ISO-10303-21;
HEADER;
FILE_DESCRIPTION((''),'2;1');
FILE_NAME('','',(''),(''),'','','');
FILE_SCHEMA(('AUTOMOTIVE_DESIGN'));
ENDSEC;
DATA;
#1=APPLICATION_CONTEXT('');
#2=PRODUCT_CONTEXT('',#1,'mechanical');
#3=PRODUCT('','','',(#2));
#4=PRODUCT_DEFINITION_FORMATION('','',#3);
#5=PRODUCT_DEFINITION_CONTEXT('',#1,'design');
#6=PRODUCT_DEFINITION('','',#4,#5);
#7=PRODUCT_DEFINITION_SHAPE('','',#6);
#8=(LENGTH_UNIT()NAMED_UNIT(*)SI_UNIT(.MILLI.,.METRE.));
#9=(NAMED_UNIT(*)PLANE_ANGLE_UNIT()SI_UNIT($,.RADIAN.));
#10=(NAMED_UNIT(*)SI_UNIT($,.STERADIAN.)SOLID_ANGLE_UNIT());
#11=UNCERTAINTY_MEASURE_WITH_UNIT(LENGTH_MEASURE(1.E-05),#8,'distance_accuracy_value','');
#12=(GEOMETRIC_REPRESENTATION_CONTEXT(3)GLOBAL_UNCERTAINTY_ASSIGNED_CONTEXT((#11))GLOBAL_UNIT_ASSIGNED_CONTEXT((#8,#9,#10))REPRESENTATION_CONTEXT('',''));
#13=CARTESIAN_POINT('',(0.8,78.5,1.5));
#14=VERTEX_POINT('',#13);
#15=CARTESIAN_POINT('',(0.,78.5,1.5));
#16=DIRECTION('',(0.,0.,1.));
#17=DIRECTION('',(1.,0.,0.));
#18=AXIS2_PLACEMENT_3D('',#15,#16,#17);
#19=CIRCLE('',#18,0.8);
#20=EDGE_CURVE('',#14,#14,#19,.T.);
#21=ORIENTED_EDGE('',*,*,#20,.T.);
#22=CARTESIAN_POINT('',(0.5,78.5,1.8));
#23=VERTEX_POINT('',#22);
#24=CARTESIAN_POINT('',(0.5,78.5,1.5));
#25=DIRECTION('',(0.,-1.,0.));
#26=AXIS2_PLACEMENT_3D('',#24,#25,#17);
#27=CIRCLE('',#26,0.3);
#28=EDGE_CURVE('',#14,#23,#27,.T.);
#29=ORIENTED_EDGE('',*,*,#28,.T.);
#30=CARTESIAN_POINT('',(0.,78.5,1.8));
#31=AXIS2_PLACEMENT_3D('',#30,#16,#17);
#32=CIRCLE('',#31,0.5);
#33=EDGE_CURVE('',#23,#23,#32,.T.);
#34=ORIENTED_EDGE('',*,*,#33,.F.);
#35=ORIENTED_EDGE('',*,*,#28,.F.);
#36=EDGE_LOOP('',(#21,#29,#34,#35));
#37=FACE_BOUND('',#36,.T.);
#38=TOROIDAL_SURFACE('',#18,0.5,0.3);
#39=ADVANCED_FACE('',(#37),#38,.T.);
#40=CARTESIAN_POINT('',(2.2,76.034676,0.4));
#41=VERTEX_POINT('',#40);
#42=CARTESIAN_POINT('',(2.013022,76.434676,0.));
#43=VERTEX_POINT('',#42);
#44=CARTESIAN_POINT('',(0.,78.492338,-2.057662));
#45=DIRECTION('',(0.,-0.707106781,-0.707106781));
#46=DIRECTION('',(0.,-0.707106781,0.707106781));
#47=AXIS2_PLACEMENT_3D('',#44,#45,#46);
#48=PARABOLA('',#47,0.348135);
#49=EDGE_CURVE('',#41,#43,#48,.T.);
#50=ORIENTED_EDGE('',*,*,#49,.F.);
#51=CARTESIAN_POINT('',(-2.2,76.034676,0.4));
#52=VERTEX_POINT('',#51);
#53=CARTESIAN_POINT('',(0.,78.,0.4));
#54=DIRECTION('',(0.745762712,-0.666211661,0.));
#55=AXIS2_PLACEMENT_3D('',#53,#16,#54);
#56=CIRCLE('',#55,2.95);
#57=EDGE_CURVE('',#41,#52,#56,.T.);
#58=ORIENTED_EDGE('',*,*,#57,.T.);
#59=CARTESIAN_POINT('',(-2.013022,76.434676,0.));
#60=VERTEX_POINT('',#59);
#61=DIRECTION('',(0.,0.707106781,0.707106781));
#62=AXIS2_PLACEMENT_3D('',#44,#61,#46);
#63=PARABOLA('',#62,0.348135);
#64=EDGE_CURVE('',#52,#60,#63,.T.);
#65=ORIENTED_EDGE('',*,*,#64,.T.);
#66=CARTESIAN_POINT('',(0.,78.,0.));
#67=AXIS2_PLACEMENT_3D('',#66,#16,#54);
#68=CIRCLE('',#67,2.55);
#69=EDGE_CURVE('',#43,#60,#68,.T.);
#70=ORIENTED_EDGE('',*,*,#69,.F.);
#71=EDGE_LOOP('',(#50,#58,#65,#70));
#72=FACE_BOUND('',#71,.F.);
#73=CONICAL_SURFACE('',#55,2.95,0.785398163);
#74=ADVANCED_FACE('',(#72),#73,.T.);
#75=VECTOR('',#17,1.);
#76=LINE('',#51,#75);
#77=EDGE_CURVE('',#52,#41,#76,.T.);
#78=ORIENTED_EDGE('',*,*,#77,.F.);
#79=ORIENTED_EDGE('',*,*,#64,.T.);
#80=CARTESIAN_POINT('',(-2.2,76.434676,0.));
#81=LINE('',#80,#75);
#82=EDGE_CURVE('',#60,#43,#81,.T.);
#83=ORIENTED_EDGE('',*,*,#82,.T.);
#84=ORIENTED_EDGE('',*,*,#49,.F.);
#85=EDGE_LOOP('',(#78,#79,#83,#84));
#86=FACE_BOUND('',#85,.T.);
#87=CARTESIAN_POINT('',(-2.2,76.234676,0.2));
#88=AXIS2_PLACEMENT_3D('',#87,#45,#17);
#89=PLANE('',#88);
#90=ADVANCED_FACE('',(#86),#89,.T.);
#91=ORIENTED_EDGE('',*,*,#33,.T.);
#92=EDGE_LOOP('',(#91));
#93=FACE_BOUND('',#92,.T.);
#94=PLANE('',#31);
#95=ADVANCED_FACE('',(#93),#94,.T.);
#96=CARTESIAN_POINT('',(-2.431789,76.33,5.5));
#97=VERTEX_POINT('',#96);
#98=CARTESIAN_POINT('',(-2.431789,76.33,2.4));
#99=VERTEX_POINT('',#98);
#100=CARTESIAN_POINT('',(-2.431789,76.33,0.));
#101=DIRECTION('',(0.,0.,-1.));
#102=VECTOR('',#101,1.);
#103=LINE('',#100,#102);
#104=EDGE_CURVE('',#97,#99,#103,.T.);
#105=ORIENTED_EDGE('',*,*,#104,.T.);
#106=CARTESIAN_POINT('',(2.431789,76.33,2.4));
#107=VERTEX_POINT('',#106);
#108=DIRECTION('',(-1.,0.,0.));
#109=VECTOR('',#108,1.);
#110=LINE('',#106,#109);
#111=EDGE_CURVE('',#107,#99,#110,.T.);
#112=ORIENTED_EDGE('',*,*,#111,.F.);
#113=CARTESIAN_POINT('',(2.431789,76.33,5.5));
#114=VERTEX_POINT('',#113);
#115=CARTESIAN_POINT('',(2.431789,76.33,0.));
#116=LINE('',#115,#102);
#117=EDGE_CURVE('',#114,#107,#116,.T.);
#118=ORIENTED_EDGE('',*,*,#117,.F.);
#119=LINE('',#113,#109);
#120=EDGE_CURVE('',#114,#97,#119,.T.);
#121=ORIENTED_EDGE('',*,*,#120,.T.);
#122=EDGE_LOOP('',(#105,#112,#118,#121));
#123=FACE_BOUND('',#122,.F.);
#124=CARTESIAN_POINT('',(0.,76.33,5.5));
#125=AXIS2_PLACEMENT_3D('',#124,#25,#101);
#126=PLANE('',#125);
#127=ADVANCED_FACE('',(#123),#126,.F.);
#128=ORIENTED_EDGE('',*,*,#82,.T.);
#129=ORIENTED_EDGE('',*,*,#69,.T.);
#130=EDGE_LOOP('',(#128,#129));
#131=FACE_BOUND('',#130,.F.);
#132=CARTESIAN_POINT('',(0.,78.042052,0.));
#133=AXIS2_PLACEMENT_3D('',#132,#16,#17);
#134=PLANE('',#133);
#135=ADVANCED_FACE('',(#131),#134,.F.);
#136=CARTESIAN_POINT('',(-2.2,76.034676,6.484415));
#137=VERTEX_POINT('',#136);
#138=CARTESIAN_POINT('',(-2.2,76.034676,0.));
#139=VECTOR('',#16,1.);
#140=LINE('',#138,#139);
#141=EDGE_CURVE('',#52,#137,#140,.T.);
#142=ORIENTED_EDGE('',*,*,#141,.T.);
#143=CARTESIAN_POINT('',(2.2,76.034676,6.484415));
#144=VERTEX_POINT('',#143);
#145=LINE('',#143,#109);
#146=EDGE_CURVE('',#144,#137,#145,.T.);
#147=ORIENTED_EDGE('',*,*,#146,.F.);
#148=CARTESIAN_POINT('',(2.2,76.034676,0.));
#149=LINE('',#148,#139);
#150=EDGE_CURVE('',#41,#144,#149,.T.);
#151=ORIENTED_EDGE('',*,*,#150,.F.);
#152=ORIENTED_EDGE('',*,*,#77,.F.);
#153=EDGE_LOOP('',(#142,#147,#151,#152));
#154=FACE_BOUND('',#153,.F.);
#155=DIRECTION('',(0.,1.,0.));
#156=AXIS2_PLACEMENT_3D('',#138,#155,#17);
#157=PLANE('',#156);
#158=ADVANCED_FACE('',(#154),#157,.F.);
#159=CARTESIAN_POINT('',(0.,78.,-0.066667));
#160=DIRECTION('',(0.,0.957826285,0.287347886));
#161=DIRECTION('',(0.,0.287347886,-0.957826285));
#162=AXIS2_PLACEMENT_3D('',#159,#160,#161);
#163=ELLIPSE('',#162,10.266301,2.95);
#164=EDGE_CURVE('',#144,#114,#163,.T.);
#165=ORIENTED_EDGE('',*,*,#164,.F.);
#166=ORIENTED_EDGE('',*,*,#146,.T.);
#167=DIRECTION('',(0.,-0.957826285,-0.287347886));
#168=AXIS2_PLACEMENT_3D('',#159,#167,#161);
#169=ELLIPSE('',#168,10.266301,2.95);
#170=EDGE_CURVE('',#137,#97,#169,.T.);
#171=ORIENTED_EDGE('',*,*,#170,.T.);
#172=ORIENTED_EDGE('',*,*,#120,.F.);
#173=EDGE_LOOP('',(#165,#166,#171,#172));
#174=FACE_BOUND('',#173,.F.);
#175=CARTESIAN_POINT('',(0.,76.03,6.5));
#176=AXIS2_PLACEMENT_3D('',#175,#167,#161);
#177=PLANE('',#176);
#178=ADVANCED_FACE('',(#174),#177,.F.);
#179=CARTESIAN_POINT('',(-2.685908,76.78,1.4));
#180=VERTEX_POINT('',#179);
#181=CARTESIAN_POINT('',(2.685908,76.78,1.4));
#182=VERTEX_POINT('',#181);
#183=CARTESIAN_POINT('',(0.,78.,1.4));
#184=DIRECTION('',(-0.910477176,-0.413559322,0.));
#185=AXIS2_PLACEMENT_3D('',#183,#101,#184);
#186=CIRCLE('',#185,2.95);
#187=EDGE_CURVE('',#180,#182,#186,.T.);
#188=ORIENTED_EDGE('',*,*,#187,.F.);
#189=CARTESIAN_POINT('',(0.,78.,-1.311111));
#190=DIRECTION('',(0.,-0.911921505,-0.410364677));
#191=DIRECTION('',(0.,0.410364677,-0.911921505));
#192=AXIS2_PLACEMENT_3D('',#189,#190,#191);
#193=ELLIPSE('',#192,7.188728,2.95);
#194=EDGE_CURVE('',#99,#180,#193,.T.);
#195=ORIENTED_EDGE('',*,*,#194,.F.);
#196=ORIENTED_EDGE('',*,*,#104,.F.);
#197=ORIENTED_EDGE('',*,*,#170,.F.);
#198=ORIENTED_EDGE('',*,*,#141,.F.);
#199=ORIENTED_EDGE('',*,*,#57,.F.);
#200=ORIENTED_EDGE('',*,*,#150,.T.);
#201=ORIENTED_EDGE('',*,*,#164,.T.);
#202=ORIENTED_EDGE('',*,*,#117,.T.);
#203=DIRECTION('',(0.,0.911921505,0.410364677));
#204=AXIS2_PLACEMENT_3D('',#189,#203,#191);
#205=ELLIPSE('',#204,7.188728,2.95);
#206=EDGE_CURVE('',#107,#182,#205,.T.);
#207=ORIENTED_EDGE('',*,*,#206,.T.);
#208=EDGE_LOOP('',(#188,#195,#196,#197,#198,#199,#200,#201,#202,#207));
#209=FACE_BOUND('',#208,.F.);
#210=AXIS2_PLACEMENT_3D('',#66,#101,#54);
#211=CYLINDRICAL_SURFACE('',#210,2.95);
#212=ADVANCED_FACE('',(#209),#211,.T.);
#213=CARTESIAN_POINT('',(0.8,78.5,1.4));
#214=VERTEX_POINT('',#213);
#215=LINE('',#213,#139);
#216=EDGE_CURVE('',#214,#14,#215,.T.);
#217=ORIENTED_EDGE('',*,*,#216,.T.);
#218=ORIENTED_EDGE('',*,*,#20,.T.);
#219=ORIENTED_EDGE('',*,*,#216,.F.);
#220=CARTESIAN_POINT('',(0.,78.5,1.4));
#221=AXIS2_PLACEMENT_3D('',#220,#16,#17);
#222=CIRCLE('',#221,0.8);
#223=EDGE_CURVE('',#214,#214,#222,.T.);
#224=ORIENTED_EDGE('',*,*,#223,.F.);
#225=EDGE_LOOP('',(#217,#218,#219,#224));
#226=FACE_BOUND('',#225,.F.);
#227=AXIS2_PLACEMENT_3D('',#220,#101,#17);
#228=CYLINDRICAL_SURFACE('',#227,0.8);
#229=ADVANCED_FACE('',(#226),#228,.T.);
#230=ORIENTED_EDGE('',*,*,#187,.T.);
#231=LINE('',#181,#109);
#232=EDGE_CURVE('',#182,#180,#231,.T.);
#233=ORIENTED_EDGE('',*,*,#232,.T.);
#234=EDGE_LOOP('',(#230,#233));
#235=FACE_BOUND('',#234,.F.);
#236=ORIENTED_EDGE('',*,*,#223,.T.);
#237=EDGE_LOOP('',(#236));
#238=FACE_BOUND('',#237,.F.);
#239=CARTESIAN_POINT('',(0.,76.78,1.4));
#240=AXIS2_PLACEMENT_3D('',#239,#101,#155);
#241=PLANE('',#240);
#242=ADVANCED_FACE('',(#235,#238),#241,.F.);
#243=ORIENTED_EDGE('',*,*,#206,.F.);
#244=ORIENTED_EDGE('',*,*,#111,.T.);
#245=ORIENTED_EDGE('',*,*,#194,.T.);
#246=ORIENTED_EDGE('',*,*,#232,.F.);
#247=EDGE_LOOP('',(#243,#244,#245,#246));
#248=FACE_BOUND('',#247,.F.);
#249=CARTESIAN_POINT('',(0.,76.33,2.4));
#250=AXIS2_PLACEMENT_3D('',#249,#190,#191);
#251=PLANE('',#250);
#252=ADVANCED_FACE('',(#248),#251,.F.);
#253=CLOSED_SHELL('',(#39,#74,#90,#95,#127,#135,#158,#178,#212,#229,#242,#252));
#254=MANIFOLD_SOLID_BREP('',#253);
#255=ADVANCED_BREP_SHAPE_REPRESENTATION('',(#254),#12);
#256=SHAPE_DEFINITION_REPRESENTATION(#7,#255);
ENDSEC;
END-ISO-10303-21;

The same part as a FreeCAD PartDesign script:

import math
import FreeCAD as App
import Part
import Sketcher

V = App.Vector
Q = App.Units.Quantity


def edges_at(feature, points):
    """Names of the edges that pass closest to the given points."""
    edges = feature.Shape.Edges
    near = lambda p: min(range(len(edges)), key=lambda i: edges[i].distToShape(Part.Vertex(*p))[0])
    return sorted({f"Edge{near(p) + 1}" for p in points})


def add_polygon(sketch, points):
    """Adds a closed chain of lines whose ends are joined by coincident constraints."""
    first, n = sketch.GeometryCount, len(points)
    for a, b in zip(points, points[1:] + points[:1]):
        sketch.addGeometry(Part.LineSegment(App.Vector(*a, 0), App.Vector(*b, 0)), False)
    for i in range(n):
        sketch.addConstraint(Sketcher.Constraint("Coincident", first + i, 2, first + (i + 1) % n, 1))

doc = App.newDocument("Part")
params = doc.addObject("Spreadsheet::Sheet", "Params")
for row, (alias, value) in enumerate([
    ("sketch1_radius", "2.95 mm"),
    ("sketch1_width", "4.4 mm"),
    ("pad1_length", "6.5 mm"),
    ("sketch2_height", "3.1 mm"),
    ("sketch2_height2", "5.1 mm"),
    ("sketch2_width", "5.22 mm"),
    ("sketch2_width2", "5.97 mm"),
    ("sketch3_diameter", "1.6 mm"),
    ("pad2_length", "0.4 mm"),
    ("fillet_radius", "0.3 mm"),
    ("chamfer_size", "0.4 mm"),
], start=1):
    params.set(f"A{row}", alias)
    params.set(f"B{row}", "=" + value)
    params.setAlias(f"B{row}", alias)

body = doc.addObject("PartDesign::Body", "Body")

# Sketch on XY plane
sketch1 = body.newObject("Sketcher::SketchObject", "Sketch")
sketch1.AttachmentSupport = (doc.getObject("XY_Plane"), [""])
sketch1.MapMode = "FlatFace"
sketch1.addGeometry([
    Part.ArcOfCircle(Part.Circle(V(0, 0, 0), V(0, 0, 1), 2.95), math.radians(-41.775348), math.radians(221.775348)),
    Part.LineSegment(V(-2.2, -1.965324, 0), V(2.2, -1.965324, 0)),
], False)
sketch1.addConstraint([
    Sketcher.Constraint("Coincident", 0, 1, 1, 2),
    Sketcher.Constraint("Coincident", 1, 1, 0, 2),
    Sketcher.Constraint("Horizontal", 1),
    Sketcher.Constraint("Coincident", 0, 3, -1, 1),
    Sketcher.Constraint("Radius", 0, Q("2.95 mm")),
    Sketcher.Constraint("DistanceX", 1, 1, 1, 2, Q("4.4 mm")),
])
sketch1.setExpression("Constraints[4]", "Params.sketch1_radius")
sketch1.setExpression("Constraints[5]", "Params.sketch1_width")
pad1 = body.newObject("PartDesign::Pad", "Pad")
pad1.Profile = sketch1
pad1.setExpression("Length", "Params.pad1_length")

# Sketch on YZ plane
sketch2 = body.newObject("Sketcher::SketchObject", "Sketch001")
sketch2.AttachmentSupport = (doc.getObject("YZ_Plane"), [""])
sketch2.MapMode = "FlatFace"
add_polygon(sketch2, [(-1.97, 6.5), (-1.67, 5.5), (-1.67, 2.4), (-1.22, 1.4), (4, 1.4), (4, 6.5)])  # lines 0-5
sketch2.addConstraint([
    Sketcher.Constraint("Vertical", 1),
    Sketcher.Constraint("Horizontal", 3),
    Sketcher.Constraint("Vertical", 4),
    Sketcher.Constraint("Horizontal", 5),
    Sketcher.Constraint("DistanceY", 1, 2, 1, 1, Q("3.1 mm")),
    Sketcher.Constraint("DistanceY", 4, 1, 4, 2, Q("5.1 mm")),
    Sketcher.Constraint("DistanceX", -1, 1, 3, 2, Q("4 mm")),
    Sketcher.Constraint("DistanceY", 2, 2, 1, 2, Q("1 mm")),
    Sketcher.Constraint("DistanceX", 3, 1, 3, 2, Q("5.22 mm")),
    Sketcher.Constraint("DistanceX", 5, 2, 5, 1, Q("5.97 mm")),
    Sketcher.Constraint("DistanceY", -1, 1, 0, 2, Q("5.5 mm")),
    Sketcher.Constraint("DistanceX", 5, 2, 0, 2, Q("0.3 mm")),
])
sketch2.setExpression("Constraints[10]", "Params.sketch2_height")
sketch2.setExpression("Constraints[11]", "Params.sketch2_height2")
sketch2.setExpression("Constraints[14]", "Params.sketch2_width")
sketch2.setExpression("Constraints[15]", "Params.sketch2_width2")
pocket1 = body.newObject("PartDesign::Pocket", "Pocket")
pocket1.Profile = sketch2
pocket1.Type = "ThroughAll"
pocket1.Midplane = True

# Sketch on XY plane
sketch3 = body.newObject("Sketcher::SketchObject", "Sketch002")
sketch3.AttachmentSupport = (doc.getObject("XY_Plane"), [""])
sketch3.MapMode = "FlatFace"
sketch3.AttachmentOffset = App.Placement(V(0, 0, 1.4), App.Rotation())
sketch3.addGeometry(Part.Circle(V(0, 0.5, 0), V(0, 0, 1), 0.8), False)
sketch3.addConstraint([
    Sketcher.Constraint("PointOnObject", 0, 3, -2),
    Sketcher.Constraint("Diameter", 0, Q("1.6 mm")),
    Sketcher.Constraint("DistanceY", -1, 1, 0, 3, Q("0.5 mm")),
])
sketch3.setExpression("Constraints[1]", "Params.sketch3_diameter")
pad2 = body.newObject("PartDesign::Pad", "Pad001")
pad2.Profile = sketch3
pad2.setExpression("Length", "Params.pad2_length")
doc.recompute()

fillet = body.newObject("PartDesign::Fillet", "Fillet")
fillet.Base = (pad2, edges_at(pad2, [(-0.8, 0.5, 1.8)]))
fillet.setExpression("Radius", "Params.fillet_radius")
doc.recompute()

chamfer = body.newObject("PartDesign::Chamfer", "Chamfer")
chamfer.Base = (fillet, edges_at(fillet, [(0, 2.95, 0), (0, -1.965, 0)]))
chamfer.setExpression("Size", "Params.chamfer_size")
body2 = doc.addObject("PartDesign::Body", "Body001")
doc.recompute()

body.Placement = App.Placement(V(0, 78, 0), App.Rotation(V(0, 0, 1), 0))
boolean = body2.newObject("PartDesign::Boolean", "Boolean")
boolean.Type = "Fuse"
boolean.addObjects([body])

doc.recompute()
